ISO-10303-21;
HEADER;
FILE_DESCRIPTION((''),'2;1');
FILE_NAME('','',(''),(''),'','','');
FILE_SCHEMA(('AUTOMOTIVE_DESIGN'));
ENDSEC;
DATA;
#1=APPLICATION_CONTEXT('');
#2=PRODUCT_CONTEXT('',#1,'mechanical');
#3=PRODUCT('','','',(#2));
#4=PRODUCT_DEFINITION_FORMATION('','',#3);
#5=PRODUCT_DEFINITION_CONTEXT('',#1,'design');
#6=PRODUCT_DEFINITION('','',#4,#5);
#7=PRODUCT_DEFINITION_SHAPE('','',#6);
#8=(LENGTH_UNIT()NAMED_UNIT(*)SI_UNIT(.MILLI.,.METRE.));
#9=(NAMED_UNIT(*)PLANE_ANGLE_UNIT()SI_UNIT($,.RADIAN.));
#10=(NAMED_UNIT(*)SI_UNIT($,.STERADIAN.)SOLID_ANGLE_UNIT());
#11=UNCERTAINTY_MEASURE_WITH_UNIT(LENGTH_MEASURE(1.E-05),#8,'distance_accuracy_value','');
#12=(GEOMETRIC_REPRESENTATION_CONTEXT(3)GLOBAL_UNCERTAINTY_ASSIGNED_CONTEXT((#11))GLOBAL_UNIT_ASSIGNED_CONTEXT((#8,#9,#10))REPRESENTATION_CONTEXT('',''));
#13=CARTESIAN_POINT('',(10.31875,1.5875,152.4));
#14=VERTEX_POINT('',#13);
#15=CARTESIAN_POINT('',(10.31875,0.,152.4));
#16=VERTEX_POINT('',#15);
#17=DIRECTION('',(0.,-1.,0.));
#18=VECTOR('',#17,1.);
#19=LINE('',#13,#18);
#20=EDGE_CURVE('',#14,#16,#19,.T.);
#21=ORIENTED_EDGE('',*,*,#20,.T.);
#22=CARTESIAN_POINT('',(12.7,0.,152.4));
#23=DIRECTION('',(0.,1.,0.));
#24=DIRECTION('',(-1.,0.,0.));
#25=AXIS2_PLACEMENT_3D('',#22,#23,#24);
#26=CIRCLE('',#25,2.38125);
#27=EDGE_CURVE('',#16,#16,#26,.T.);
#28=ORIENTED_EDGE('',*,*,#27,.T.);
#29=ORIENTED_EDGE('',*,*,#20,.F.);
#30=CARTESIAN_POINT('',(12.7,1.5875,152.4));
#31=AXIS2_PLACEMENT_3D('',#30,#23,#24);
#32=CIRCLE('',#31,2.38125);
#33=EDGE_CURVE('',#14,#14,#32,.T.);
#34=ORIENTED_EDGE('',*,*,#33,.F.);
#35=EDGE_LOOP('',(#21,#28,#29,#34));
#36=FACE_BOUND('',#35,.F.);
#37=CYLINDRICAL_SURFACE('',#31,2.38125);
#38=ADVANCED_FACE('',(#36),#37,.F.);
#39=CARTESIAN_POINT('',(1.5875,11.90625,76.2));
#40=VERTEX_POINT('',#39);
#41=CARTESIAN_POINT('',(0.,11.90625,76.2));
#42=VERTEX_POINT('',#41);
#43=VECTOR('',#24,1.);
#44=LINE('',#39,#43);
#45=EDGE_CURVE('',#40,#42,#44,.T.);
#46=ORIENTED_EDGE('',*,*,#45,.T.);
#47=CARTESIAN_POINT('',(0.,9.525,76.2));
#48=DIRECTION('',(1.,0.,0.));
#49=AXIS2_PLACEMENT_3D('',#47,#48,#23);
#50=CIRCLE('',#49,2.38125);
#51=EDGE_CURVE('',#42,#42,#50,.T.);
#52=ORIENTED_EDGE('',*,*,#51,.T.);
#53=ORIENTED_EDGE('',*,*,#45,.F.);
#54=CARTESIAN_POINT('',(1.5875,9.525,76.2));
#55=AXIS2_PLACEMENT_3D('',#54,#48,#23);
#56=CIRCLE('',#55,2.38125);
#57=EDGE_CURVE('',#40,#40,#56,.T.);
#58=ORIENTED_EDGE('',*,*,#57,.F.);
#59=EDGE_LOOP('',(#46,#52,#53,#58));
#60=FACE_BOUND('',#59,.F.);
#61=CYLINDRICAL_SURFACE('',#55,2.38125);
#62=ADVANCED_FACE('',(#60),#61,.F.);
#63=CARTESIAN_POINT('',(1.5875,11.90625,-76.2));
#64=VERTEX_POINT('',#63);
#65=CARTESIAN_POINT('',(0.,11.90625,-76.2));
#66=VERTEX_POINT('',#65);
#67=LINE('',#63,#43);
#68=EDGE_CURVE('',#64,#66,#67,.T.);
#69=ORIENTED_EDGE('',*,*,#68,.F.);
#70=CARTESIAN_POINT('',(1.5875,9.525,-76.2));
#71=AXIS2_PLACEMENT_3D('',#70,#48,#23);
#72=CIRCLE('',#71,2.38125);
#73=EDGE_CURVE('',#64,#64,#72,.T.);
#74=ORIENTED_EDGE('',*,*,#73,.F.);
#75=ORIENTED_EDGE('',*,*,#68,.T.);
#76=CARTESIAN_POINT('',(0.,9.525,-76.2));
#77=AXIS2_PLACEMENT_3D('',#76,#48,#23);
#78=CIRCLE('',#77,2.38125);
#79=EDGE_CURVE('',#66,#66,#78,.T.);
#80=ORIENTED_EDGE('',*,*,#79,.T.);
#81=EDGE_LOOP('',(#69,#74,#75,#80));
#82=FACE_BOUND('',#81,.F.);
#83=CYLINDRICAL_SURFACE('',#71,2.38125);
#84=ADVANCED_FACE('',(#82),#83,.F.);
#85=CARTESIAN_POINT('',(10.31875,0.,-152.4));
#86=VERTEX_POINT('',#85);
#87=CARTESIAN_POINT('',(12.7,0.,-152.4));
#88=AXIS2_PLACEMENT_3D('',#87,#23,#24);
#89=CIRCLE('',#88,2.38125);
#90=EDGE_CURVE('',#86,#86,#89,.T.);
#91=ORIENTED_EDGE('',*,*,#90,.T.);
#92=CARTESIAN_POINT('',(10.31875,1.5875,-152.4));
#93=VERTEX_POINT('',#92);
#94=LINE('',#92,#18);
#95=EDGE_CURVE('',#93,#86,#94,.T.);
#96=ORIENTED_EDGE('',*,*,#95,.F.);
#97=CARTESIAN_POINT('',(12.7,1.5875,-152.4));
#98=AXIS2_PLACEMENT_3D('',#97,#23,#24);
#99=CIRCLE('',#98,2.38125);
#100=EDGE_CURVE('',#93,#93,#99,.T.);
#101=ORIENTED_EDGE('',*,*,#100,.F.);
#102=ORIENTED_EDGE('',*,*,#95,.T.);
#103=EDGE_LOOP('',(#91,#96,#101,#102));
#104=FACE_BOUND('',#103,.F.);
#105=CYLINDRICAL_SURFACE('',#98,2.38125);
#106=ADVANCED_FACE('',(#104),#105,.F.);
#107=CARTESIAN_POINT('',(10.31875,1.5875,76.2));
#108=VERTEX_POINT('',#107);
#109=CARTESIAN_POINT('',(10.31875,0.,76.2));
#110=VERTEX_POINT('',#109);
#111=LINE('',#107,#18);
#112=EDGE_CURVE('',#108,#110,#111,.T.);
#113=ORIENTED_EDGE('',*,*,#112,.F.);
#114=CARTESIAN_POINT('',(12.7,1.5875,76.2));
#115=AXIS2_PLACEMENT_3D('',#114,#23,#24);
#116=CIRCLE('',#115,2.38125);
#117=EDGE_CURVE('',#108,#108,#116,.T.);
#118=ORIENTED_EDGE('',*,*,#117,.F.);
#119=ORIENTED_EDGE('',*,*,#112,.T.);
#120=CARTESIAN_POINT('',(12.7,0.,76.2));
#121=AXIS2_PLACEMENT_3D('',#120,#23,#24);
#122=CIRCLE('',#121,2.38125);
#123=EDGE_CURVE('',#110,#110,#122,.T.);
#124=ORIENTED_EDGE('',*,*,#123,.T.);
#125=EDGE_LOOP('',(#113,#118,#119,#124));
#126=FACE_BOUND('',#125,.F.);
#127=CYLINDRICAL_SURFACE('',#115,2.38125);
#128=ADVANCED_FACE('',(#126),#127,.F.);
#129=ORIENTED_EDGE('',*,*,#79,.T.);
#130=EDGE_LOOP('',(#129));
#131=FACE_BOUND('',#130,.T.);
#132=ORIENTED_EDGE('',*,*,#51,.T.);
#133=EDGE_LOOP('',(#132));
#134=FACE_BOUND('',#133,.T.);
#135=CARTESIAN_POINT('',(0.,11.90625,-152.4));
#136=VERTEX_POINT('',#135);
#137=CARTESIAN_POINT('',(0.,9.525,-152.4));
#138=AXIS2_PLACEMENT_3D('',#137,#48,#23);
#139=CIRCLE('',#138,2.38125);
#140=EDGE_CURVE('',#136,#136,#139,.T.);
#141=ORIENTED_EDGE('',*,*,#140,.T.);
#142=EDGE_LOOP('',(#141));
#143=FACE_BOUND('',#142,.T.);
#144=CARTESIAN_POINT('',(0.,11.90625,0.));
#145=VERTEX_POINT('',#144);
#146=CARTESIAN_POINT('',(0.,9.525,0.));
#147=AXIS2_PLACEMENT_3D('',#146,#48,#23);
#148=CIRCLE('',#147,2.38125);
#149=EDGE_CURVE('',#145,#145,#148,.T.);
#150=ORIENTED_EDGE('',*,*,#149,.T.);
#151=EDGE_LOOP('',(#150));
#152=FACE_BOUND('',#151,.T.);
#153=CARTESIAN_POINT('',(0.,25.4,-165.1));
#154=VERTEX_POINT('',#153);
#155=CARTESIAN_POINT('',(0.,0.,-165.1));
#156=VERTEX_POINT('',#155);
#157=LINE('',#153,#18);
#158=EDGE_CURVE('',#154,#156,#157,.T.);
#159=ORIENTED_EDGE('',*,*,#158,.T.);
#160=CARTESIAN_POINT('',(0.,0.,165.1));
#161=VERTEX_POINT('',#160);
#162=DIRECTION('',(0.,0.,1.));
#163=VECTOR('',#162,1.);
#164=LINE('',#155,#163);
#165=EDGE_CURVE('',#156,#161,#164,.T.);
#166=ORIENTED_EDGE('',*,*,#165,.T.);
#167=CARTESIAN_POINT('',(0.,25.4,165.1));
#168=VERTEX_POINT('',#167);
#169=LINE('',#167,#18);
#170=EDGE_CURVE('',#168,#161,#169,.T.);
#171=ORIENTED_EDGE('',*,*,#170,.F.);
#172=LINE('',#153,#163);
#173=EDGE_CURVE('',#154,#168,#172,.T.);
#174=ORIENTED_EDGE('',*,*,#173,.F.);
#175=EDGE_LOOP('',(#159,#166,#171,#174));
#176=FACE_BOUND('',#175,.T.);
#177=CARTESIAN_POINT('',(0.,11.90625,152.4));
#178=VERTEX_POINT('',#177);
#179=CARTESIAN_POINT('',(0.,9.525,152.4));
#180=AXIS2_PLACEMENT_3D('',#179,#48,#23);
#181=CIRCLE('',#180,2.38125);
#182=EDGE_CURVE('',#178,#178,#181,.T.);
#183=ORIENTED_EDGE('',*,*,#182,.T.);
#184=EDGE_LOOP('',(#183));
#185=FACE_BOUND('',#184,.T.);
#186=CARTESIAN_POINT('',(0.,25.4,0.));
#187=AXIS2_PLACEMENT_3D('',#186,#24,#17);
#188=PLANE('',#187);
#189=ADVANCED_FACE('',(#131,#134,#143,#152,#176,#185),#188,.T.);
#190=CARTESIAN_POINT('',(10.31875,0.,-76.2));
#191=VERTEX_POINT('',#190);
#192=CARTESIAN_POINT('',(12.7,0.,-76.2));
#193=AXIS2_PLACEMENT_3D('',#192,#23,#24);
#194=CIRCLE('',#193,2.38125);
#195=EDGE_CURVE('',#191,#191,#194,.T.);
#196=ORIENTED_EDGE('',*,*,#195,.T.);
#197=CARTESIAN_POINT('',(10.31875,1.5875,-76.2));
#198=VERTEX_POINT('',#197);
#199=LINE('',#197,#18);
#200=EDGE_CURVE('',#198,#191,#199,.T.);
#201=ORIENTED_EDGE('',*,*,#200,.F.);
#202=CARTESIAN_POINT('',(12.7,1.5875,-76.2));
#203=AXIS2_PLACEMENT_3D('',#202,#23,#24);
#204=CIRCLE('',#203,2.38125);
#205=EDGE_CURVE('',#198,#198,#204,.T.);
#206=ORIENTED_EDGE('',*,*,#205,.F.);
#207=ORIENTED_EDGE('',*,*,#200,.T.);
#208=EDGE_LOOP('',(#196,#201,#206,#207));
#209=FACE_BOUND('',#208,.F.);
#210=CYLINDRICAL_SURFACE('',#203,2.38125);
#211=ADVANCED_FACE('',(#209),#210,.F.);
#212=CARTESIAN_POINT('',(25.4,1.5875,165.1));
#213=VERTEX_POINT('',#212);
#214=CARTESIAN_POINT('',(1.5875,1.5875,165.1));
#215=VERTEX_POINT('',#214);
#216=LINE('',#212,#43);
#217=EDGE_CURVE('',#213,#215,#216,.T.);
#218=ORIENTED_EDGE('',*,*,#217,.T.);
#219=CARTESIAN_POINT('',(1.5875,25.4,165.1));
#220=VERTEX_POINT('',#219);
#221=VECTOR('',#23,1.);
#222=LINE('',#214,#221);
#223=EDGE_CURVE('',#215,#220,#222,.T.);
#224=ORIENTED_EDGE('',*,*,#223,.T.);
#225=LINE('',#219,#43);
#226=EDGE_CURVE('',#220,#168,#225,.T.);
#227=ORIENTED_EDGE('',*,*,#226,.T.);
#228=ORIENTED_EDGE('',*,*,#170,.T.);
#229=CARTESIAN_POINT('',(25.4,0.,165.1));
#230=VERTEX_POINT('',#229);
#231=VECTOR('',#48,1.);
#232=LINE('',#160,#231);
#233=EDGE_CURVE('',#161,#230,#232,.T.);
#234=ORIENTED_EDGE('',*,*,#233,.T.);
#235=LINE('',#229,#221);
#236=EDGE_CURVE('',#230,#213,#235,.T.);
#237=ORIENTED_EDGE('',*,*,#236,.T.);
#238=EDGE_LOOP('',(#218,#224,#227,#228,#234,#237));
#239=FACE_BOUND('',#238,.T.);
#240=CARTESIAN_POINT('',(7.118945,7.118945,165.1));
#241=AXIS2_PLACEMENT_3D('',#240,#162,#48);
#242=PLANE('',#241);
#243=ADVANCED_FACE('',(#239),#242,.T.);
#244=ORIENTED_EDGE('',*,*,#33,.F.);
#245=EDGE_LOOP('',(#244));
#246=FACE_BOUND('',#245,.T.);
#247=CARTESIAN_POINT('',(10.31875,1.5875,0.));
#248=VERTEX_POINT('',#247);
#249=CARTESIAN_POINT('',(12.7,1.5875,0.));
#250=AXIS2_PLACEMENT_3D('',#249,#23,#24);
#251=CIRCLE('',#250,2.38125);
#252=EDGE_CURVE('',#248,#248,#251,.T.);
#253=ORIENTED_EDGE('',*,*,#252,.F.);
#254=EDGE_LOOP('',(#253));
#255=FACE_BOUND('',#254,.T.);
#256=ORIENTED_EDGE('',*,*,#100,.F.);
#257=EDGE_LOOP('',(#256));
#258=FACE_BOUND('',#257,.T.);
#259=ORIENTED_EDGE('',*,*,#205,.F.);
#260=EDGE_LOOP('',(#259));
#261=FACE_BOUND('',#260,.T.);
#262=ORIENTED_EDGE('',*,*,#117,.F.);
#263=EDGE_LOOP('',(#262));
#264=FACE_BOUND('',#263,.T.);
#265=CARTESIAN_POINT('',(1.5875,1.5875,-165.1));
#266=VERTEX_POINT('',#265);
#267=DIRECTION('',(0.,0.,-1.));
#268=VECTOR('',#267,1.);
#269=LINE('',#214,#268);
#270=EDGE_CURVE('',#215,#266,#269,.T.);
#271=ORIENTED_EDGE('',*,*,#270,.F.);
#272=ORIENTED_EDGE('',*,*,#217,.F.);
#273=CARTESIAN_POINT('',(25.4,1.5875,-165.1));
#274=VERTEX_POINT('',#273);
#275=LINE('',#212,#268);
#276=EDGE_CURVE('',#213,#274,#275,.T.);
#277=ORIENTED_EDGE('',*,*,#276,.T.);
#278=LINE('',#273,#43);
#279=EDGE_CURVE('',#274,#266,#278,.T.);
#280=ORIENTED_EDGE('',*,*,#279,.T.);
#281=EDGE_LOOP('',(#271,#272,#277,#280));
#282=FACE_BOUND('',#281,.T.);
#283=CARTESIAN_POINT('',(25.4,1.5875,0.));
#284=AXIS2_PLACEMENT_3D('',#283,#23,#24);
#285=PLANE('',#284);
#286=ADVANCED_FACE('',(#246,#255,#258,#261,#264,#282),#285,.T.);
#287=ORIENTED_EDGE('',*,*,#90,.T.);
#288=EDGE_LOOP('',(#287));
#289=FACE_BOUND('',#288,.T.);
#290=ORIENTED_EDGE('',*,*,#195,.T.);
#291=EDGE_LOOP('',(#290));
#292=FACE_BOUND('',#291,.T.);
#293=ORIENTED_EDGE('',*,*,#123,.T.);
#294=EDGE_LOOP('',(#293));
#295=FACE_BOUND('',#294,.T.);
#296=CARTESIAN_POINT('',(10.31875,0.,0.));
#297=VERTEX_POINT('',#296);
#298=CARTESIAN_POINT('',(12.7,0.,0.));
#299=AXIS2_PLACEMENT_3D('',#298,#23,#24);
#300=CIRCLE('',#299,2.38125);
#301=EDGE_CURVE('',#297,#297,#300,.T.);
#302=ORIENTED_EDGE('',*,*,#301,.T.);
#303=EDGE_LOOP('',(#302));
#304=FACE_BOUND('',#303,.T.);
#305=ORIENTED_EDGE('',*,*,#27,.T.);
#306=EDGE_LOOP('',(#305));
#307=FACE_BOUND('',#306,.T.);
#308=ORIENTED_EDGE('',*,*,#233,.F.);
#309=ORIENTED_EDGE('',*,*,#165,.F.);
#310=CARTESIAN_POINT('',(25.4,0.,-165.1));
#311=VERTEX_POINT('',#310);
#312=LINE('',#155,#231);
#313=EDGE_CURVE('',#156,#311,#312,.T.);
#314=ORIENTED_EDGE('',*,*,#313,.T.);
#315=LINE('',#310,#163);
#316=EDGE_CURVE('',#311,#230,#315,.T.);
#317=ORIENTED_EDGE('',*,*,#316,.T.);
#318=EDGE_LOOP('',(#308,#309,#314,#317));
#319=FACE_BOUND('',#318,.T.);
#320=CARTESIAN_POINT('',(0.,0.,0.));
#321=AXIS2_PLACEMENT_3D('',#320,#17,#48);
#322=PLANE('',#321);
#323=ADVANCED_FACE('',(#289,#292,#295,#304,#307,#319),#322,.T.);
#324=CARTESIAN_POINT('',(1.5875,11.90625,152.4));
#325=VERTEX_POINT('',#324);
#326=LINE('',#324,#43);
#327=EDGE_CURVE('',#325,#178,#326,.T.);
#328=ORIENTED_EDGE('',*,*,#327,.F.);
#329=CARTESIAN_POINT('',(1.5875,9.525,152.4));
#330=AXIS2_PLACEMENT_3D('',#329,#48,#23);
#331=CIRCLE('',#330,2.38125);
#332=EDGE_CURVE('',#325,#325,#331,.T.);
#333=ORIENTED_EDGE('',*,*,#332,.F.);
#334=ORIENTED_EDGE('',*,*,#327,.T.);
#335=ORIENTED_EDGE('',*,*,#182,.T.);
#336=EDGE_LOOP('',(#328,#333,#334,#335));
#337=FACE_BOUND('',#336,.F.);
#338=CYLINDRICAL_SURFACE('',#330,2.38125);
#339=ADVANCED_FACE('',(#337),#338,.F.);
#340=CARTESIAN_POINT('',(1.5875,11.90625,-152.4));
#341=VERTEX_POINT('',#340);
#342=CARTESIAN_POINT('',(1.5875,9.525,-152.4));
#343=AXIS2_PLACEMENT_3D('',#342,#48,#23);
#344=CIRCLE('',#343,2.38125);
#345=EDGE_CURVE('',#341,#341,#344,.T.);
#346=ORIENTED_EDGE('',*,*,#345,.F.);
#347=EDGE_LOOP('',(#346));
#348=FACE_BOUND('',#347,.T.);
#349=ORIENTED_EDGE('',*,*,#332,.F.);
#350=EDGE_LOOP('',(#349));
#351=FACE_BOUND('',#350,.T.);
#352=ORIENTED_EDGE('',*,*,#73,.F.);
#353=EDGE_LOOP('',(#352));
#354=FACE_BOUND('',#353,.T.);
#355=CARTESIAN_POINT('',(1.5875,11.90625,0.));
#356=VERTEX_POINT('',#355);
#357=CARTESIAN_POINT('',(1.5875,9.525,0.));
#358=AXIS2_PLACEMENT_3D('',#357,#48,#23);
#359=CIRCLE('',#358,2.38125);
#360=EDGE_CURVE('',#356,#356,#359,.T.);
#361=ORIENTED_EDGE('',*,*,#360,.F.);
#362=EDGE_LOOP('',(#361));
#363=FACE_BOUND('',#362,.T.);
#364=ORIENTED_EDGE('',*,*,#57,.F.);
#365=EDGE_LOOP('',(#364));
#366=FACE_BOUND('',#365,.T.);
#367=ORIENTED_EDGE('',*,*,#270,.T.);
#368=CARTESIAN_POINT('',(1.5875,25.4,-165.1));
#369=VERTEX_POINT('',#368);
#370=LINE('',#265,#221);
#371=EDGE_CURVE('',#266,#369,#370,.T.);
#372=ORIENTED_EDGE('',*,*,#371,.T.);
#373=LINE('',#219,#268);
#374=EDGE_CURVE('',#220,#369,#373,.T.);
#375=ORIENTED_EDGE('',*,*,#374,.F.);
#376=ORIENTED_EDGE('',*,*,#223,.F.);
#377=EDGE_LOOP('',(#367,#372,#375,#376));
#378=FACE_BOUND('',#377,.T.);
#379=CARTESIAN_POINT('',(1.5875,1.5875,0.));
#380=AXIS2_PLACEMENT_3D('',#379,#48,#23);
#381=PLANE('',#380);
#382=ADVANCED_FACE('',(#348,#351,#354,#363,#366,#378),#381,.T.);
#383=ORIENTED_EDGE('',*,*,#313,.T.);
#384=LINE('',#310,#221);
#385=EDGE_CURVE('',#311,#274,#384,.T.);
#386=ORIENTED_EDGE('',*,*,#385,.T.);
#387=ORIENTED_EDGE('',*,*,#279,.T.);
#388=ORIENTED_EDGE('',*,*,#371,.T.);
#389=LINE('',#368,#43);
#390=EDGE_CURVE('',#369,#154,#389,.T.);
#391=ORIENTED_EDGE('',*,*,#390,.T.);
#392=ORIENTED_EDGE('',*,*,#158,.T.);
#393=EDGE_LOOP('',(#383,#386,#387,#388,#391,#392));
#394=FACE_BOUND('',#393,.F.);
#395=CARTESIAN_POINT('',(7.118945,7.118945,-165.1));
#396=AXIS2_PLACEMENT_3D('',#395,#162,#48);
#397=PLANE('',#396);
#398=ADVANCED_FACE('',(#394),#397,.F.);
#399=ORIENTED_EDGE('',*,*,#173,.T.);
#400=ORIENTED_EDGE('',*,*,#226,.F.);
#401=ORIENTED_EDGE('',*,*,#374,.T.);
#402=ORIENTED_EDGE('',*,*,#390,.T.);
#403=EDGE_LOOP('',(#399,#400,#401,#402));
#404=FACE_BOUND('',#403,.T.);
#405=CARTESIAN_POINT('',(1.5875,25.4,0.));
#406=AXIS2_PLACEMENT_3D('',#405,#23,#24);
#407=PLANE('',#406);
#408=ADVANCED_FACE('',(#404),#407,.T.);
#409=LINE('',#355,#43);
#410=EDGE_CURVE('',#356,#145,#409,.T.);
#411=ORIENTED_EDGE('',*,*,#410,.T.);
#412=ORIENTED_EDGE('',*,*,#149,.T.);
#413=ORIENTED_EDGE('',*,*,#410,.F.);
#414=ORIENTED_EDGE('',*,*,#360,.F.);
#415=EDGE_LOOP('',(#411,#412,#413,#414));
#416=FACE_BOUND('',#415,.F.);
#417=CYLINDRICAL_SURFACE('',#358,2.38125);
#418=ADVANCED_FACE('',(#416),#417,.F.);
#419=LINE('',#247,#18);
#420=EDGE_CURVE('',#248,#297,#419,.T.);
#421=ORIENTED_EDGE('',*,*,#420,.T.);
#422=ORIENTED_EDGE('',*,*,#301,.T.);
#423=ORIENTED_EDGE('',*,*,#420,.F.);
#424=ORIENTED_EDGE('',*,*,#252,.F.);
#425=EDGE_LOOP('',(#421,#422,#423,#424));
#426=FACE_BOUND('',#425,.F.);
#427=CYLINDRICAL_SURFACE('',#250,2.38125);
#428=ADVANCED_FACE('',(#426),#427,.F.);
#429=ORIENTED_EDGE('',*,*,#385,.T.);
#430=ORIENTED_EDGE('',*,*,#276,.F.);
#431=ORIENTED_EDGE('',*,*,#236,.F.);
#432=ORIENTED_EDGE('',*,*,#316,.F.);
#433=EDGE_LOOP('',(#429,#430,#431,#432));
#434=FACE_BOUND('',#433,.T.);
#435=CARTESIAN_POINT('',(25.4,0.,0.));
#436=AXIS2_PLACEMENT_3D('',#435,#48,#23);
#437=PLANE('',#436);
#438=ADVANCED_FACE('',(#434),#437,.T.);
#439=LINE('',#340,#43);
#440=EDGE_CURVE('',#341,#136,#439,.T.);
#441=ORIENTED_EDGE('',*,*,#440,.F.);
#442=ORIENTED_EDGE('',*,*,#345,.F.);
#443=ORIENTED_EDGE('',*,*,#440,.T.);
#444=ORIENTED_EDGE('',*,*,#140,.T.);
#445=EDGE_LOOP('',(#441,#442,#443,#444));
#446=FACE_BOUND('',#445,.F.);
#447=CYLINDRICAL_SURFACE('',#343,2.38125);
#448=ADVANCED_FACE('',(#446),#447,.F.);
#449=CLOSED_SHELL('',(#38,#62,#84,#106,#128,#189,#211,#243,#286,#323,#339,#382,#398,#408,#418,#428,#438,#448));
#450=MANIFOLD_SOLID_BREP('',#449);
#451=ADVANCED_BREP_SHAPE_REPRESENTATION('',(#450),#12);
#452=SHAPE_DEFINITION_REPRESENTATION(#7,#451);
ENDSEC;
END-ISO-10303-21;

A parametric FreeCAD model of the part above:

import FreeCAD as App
import Part
import Sketcher
Q = App.Units.Quantity


def add_polygon(sketch, points):
    """Adds a closed chain of lines whose ends are joined by coincident constraints."""
    first, n = sketch.GeometryCount, len(points)
    for a, b in zip(points, points[1:] + points[:1]):
        sketch.addGeometry(Part.LineSegment(App.Vector(*a, 0), App.Vector(*b, 0)), False)
    for i in range(n):
        sketch.addConstraint(Sketcher.Constraint("Coincident", first + i, 2, first + (i + 1) % n, 1))

doc = App.newDocument("Part")
body = doc.addObject("PartDesign::Body", "Body")

# Sketch on XY plane
sketch1 = body.newObject("Sketcher::SketchObject", "Sketch")
sketch1.AttachmentSupport = (doc.getObject("XY_Plane"), [""])
sketch1.MapMode = "FlatFace"
add_polygon(sketch1, [(1.6, 25.4), (0, 25.4), (0, 0), (25.4, 0), (25.4, 1.6), (1.6, 1.6)])  # lines 0-5
sketch1.addConstraint([
    Sketcher.Constraint("Horizontal", 0),
    Sketcher.Constraint("Vertical", 1),
    Sketcher.Constraint("Horizontal", 2),
    Sketcher.Constraint("Vertical", 3),
    Sketcher.Constraint("Horizontal", 4),
    Sketcher.Constraint("Vertical", 5),
    Sketcher.Constraint("Coincident", 1, 2, -1, 1),
    Sketcher.Constraint("Equal", 2, 1),
    Sketcher.Constraint("Equal", 0, 3),
    Sketcher.Constraint("DistanceX", 2, 1, 2, 2, Q("1 in")),
    Sketcher.Constraint("DistanceX", 0, 2, 0, 1, Q("0.0625 in")),
])
pad1 = body.newObject("PartDesign::Pad", "Pad")
pad1.Profile = sketch1
pad1.Length = Q("13 in")
pad1.Midplane = True

# Sketch on XZ plane
sketch2 = body.newObject("Sketcher::SketchObject", "Sketch001")
sketch2.AttachmentSupport = (doc.getObject("XZ_Plane"), [""])
sketch2.MapMode = "FlatFace"
sketch2.AttachmentOffset = App.Placement(App.Vector(0, 0, -0.0625 * 25.4), App.Rotation())
sketch2.addGeometry([
    Part.Circle(App.Vector(12.7, -152.4, 0), App.Vector(0, 0, 1), 2.4),  # 0
    Part.Circle(App.Vector(12.7, 152.4, 0), App.Vector(0, 0, 1), 2.4),  # 1
    Part.Circle(App.Vector(12.7, 76.2, 0), App.Vector(0, 0, 1), 2.4),  # 2
    Part.Circle(App.Vector(12.7, -76.2, 0), App.Vector(0, 0, 1), 2.4),  # 3
    Part.Circle(App.Vector(12.7, 0, 0), App.Vector(0, 0, 1), 2.4),  # 4
], False)
sketch2.addConstraint([
    Sketcher.Constraint("Equal", 0, 1),
    Sketcher.Constraint("Equal", 1, 2),
    Sketcher.Constraint("Equal", 2, 3),
    Sketcher.Constraint("Equal", 3, 4),
    Sketcher.Constraint("Symmetric", 0, 3, 1, 3, -1),
    Sketcher.Constraint("Symmetric", 2, 3, 3, 3, -1),
    Sketcher.Constraint("PointOnObject", 4, 3, -1),
    Sketcher.Constraint("Vertical", 1, 3, 2, 3),
    Sketcher.Constraint("Vertical", 3, 3, 4, 3),
    Sketcher.Constraint("Diameter", 0, Q("0.1875 in")),
    Sketcher.Constraint("DistanceY", 0, 3, -1, 1, Q("6 in")),
    Sketcher.Constraint("DistanceY", -1, 1, 2, 3, Q("3 in")),
    Sketcher.Constraint("DistanceX", -1, 1, 0, 3, Q("0.5 in")),
])
pocket1 = body.newObject("PartDesign::Pocket", "Pocket")
pocket1.Profile = sketch2
pocket1.Type = "ThroughAll"
pocket1.Reversed = True

# Sketch on YZ plane
sketch3 = body.newObject("Sketcher::SketchObject", "Sketch002")
sketch3.AttachmentSupport = (doc.getObject("YZ_Plane"), [""])
sketch3.MapMode = "FlatFace"
sketch3.AttachmentOffset = App.Placement(App.Vector(0, 0, 0.0625 * 25.4), App.Rotation())
sketch3.addGeometry([
    Part.Circle(App.Vector(9.5, -152.4, 0), App.Vector(0, 0, 1), 2.4),  # 0
    Part.Circle(App.Vector(9.5, -76.2, 0), App.Vector(0, 0, 1), 2.4),  # 1
    Part.Circle(App.Vector(9.5, 0, 0), App.Vector(0, 0, 1), 2.4),  # 2
    Part.Circle(App.Vector(9.5, 76.2, 0), App.Vector(0, 0, 1), 2.4),  # 3
    Part.Circle(App.Vector(9.5, 152.4, 0), App.Vector(0, 0, 1), 2.4),  # 4
], False)
sketch3.addConstraint([
    Sketcher.Constraint("Equal", 0, 1),
    Sketcher.Constraint("Equal", 1, 2),
    Sketcher.Constraint("Equal", 2, 3),
    Sketcher.Constraint("Equal", 3, 4),
    Sketcher.Constraint("Symmetric", 1, 3, 3, 3, -1),
    Sketcher.Constraint("Symmetric", 0, 3, 4, 3, -1),
    Sketcher.Constraint("PointOnObject", 2, 3, -1),
    Sketcher.Constraint("Vertical", 0, 3, 1, 3),
    Sketcher.Constraint("Vertical", 1, 3, 2, 3),
    Sketcher.Constraint("Diameter", 0, Q("0.1875 in")),
    Sketcher.Constraint("DistanceY", 0, 3, -1, 1, Q("6 in")),
    Sketcher.Constraint("DistanceY", 1, 3, -1, 1, Q("3 in")),
    Sketcher.Constraint("DistanceX", -1, 1, 0, 3, Q("0.375 in")),
])
pocket2 = body.newObject("PartDesign::Pocket", "Pocket001")
pocket2.Profile = sketch3
pocket2.Length = Q("1 in")

doc.recompute()
